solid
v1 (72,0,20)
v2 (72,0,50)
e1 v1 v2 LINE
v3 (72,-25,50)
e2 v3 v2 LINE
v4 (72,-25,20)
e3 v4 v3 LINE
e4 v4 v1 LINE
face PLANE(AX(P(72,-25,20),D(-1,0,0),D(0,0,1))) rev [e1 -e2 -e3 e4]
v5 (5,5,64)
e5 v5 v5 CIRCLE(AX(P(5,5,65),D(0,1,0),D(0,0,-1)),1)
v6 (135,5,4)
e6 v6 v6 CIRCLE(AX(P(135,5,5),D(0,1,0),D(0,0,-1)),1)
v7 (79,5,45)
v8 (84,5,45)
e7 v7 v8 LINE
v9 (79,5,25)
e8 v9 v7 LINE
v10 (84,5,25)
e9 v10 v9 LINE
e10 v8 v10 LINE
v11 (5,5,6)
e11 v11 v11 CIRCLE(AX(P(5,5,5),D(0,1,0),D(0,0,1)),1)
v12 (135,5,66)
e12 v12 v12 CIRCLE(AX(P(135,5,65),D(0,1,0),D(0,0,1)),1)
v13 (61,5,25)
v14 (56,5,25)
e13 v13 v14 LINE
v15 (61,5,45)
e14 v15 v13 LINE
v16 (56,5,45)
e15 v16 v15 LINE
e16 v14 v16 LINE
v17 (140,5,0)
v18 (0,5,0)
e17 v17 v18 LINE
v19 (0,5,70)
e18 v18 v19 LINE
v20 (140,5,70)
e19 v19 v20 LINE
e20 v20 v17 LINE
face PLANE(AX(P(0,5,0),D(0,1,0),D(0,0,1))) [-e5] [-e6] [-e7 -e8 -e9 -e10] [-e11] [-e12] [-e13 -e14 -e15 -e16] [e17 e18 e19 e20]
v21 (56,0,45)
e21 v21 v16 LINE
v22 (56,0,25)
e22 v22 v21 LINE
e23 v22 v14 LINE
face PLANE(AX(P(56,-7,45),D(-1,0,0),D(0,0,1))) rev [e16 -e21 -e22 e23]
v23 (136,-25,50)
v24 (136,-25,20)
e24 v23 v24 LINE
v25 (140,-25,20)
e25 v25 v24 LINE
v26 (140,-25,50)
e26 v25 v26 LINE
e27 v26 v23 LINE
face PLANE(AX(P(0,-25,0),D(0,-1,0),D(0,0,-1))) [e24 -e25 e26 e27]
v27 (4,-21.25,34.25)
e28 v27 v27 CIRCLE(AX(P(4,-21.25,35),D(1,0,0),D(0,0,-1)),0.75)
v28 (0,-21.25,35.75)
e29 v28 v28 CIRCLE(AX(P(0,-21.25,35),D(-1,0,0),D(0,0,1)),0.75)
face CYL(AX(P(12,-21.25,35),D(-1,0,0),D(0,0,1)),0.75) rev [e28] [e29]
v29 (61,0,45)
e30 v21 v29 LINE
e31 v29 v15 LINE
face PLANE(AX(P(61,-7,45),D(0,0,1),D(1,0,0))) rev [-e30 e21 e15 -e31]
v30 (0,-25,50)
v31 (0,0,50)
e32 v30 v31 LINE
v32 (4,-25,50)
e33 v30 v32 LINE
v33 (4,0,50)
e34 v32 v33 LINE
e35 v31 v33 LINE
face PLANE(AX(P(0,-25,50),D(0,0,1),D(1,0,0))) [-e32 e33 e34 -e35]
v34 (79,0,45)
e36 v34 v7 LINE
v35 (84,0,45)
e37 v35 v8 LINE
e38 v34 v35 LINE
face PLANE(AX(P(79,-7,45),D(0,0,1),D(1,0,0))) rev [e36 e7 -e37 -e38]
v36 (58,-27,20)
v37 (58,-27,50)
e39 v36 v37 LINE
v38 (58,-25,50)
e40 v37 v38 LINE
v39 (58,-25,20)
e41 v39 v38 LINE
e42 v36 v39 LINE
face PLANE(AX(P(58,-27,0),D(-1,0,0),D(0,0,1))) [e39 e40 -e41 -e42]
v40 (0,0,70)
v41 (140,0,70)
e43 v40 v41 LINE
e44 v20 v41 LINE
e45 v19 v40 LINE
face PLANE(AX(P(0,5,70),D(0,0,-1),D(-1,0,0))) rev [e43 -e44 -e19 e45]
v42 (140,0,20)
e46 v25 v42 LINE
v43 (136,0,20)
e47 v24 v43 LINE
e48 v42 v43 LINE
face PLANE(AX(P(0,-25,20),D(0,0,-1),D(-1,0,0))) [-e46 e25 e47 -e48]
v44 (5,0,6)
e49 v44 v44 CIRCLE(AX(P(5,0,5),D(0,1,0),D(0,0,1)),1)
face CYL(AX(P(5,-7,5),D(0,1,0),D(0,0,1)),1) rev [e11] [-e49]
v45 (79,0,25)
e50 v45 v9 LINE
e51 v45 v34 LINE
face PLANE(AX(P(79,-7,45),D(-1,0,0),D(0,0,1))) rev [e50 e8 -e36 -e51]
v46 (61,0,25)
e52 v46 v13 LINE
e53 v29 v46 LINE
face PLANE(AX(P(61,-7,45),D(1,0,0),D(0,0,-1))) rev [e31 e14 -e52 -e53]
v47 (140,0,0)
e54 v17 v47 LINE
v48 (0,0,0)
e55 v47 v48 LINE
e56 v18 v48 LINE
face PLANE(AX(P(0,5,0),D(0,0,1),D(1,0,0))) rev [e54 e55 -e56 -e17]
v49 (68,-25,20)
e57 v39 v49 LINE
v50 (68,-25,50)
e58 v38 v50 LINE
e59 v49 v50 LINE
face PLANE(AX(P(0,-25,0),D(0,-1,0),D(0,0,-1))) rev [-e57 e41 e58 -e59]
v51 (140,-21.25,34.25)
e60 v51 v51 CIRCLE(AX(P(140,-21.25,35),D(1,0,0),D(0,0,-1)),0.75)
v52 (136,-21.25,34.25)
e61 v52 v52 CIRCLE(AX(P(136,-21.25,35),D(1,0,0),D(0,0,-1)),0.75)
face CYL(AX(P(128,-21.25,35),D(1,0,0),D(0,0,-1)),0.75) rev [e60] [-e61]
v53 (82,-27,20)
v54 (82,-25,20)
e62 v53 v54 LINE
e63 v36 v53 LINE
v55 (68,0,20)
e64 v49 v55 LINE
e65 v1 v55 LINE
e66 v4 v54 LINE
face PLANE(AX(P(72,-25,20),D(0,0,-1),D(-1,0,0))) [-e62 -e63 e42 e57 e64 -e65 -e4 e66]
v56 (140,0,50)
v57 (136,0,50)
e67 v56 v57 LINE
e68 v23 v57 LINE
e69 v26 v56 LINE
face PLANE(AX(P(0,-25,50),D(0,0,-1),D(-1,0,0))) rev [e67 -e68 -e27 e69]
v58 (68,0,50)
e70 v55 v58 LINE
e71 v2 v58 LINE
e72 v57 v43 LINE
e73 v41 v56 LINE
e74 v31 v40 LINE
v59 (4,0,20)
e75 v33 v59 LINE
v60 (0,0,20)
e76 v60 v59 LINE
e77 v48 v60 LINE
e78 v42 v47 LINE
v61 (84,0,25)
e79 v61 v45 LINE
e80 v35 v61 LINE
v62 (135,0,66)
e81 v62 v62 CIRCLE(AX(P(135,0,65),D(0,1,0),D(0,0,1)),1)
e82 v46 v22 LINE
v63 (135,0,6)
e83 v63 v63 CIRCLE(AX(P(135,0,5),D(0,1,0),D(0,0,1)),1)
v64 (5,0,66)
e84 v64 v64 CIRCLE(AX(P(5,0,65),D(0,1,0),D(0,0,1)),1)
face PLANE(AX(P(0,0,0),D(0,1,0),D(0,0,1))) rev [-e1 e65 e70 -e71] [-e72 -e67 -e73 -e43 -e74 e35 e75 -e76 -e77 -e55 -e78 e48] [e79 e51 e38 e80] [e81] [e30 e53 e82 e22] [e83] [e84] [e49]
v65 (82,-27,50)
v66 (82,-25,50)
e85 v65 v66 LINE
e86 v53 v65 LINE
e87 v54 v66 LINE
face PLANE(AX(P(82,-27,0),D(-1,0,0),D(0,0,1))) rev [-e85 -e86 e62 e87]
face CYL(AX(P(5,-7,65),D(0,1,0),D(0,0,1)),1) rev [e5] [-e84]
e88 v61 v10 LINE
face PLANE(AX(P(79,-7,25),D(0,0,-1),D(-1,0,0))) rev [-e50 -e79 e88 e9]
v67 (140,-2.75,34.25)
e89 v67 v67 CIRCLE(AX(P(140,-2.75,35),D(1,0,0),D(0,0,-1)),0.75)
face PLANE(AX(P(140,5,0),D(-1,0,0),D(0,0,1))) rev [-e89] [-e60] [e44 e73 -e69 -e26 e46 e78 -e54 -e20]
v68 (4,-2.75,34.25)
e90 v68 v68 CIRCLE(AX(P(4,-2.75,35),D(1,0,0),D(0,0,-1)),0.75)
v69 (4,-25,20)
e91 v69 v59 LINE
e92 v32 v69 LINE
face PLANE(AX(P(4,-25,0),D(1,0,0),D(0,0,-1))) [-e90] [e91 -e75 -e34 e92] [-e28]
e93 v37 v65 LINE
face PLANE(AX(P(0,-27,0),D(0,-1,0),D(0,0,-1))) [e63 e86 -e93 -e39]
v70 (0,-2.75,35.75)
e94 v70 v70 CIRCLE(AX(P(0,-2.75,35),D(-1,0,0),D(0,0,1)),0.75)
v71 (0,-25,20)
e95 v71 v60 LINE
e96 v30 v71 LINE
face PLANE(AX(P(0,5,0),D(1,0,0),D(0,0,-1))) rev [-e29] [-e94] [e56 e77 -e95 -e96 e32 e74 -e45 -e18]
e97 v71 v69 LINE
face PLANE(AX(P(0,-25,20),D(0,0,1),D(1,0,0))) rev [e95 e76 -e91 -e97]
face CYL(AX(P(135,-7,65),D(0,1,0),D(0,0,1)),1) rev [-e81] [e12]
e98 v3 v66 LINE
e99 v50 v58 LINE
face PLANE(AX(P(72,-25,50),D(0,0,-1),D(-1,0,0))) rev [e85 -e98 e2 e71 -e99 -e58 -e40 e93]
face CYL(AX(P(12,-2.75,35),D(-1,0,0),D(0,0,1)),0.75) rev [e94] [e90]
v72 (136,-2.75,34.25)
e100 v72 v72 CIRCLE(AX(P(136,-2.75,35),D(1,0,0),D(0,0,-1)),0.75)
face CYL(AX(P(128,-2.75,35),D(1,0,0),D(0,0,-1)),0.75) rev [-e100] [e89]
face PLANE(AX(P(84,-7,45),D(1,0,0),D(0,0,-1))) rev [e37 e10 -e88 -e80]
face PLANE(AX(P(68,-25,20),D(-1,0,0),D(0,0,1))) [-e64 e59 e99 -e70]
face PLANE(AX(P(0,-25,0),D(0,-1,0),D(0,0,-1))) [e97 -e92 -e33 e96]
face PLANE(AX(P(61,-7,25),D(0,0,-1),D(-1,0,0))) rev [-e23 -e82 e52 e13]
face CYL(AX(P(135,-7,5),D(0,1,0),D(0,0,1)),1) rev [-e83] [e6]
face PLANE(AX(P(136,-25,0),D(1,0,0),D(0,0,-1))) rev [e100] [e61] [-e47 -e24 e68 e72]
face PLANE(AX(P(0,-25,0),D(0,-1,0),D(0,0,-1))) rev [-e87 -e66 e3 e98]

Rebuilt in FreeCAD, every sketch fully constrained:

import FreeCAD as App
import Part
import Sketcher
from FreeCAD import Vector

doc = App.newDocument("Part")
params = doc.addObject("Spreadsheet::Sheet", "Params")
for row, (alias, value) in enumerate([
    ("sketch1_width", "140 mm"),
    ("sketch1_height", "70 mm"),
    ("pad1_length", "5 mm"),
    ("sketch2_width", "4 mm"),
    ("sketch2_height", "30 mm"),
    ("pad2_length", "25 mm"),
    ("sketch3_width", "24 mm"),
    ("sketch3_height", "30 mm"),
    ("pad3_length", "2 mm"),
    ("sketch4_diameter", "1.5 mm"),
    ("pocket1_length", "12 mm"),
    ("sketch5_diameter", "1.5 mm"),
    ("pocket2_length", "12 mm"),
    ("sketch6_width", "5 mm"),
    ("sketch6_height", "20 mm"),
    ("pocket3_length", "12 mm"),
    ("sketch7_diameter", "2 mm"),
    ("pocket4_length", "12 mm"),
], start=1):
    params.set(f"A{row}", alias)
    params.set(f"B{row}", "=" + value)
    params.setAlias(f"B{row}", alias)

body = doc.addObject("PartDesign::Body", "Body")

sketch1 = doc.addObject("Sketcher::SketchObject", "Sketch")
body.addObject(sketch1)
sketch1.AttachmentSupport = (doc.XZ_Plane, [""])
sketch1.MapMode = "FlatFace"
sketch1.addGeometry([
    Part.LineSegment(Vector(0, 0, 0), Vector(0, 70, 0)),
    Part.LineSegment(Vector(0, 70, 0), Vector(140, 70, 0)),
    Part.LineSegment(Vector(140, 70, 0), Vector(140, 0, 0)),
    Part.LineSegment(Vector(140, 0, 0), Vector(0, 0, 0)),
], False)
sketch1.addConstraint([
    Sketcher.Constraint("Coincident", 0, 2, 1, 1),
    Sketcher.Constraint("Coincident", 1, 2, 2, 1),
    Sketcher.Constraint("Coincident", 2, 2, 3, 1),
    Sketcher.Constraint("Coincident", 3, 2, 0, 1),
    Sketcher.Constraint("Vertical", 0),
    Sketcher.Constraint("Horizontal", 1),
    Sketcher.Constraint("Vertical", 2),
    Sketcher.Constraint("Horizontal", 3),
    Sketcher.Constraint("Coincident", 3, 2, -1, 1),
    Sketcher.Constraint("DistanceX", 1, 1, 1, 2, 140.0),
    Sketcher.Constraint("DistanceY", 0, 1, 0, 2, 70.0),
])
sketch1.setExpression("Constraints[9]", "Params.sketch1_width")
sketch1.setExpression("Constraints[10]", "Params.sketch1_height")
pad1 = doc.addObject("PartDesign::Pad", "Pad")
body.addObject(pad1)
pad1.Profile = sketch1
pad1.setExpression("Length", "Params.pad1_length")
pad1.Reversed = True

sketch2 = doc.addObject("Sketcher::SketchObject", "Sketch001")
body.addObject(sketch2)
sketch2.AttachmentSupport = (doc.XZ_Plane, [""])
sketch2.MapMode = "FlatFace"
sketch2.addGeometry([
    Part.LineSegment(Vector(0, 50, 0), Vector(0, 20, 0)),
    Part.LineSegment(Vector(0, 20, 0), Vector(4, 20, 0)),
    Part.LineSegment(Vector(4, 20, 0), Vector(4, 50, 0)),
    Part.LineSegment(Vector(4, 50, 0), Vector(0, 50, 0)),
    Part.LineSegment(Vector(136, 50, 0), Vector(136, 20, 0)),
    Part.LineSegment(Vector(136, 20, 0), Vector(140, 20, 0)),
    Part.LineSegment(Vector(140, 20, 0), Vector(140, 50, 0)),
    Part.LineSegment(Vector(140, 50, 0), Vector(136, 50, 0)),
    Part.LineSegment(Vector(68, 50, 0), Vector(68, 20, 0)),
    Part.LineSegment(Vector(68, 20, 0), Vector(72, 20, 0)),
    Part.LineSegment(Vector(72, 20, 0), Vector(72, 50, 0)),
    Part.LineSegment(Vector(72, 50, 0), Vector(68, 50, 0)),
], False)
sketch2.addConstraint([
    Sketcher.Constraint("Coincident", 0, 2, 1, 1),
    Sketcher.Constraint("Coincident", 1, 2, 2, 1),
    Sketcher.Constraint("Coincident", 2, 2, 3, 1),
    Sketcher.Constraint("Coincident", 3, 2, 0, 1),
    Sketcher.Constraint("Coincident", 4, 2, 5, 1),
    Sketcher.Constraint("Coincident", 5, 2, 6, 1),
    Sketcher.Constraint("Coincident", 6, 2, 7, 1),
    Sketcher.Constraint("Coincident", 7, 2, 4, 1),
    Sketcher.Constraint("Coincident", 8, 2, 9, 1),
    Sketcher.Constraint("Coincident", 9, 2, 10, 1),
    Sketcher.Constraint("Coincident", 10, 2, 11, 1),
    Sketcher.Constraint("Coincident", 11, 2, 8, 1),
    Sketcher.Constraint("Vertical", 0),
    Sketcher.Constraint("Horizontal", 1),
    Sketcher.Constraint("Vertical", 2),
    Sketcher.Constraint("Horizontal", 3),
    Sketcher.Constraint("Vertical", 4),
    Sketcher.Constraint("Horizontal", 5),
    Sketcher.Constraint("Vertical", 6),
    Sketcher.Constraint("Horizontal", 7),
    Sketcher.Constraint("Vertical", 8),
    Sketcher.Constraint("Horizontal", 9),
    Sketcher.Constraint("Vertical", 10),
    Sketcher.Constraint("Horizontal", 11),
    Sketcher.Constraint("PointOnObject", 0, 2, -2),
    Sketcher.Constraint("Horizontal", 1, 2, 4, 2),
    Sketcher.Constraint("Horizontal", 3, 2, 6, 2),
    Sketcher.Constraint("Horizontal", 5, 2, 8, 2),
    Sketcher.Constraint("Horizontal", 7, 2, 10, 2),
    Sketcher.Constraint("Equal", 3, 5),
    Sketcher.Constraint("Equal", 7, 9),
    Sketcher.Constraint("DistanceX", 1, 1, 1, 2, 4.0),
    Sketcher.Constraint("DistanceY", 0, 2, 0, 1, 30.0),
    Sketcher.Constraint("DistanceY", -1, 1, 0, 2, 20.0),
    Sketcher.Constraint("DistanceX", -1, 1, 4, 2, 136.0),
    Sketcher.Constraint("DistanceX", -1, 1, 8, 2, 68.0),
])
sketch2.setExpression("Constraints[31]", "Params.sketch2_width")
sketch2.setExpression("Constraints[32]", "Params.sketch2_height")
pad2 = doc.addObject("PartDesign::Pad", "Pad001")
body.addObject(pad2)
pad2.Profile = sketch2
pad2.setExpression("Length", "Params.pad2_length")

sketch3 = doc.addObject("Sketcher::SketchObject", "Sketch002")
body.addObject(sketch3)
sketch3.AttachmentSupport = (doc.XZ_Plane, [""])
sketch3.MapMode = "FlatFace"
sketch3.AttachmentOffset = App.Placement(Vector(0, 0, 25), App.Rotation())
sketch3.addGeometry([
    Part.LineSegment(Vector(82, 20, 0), Vector(82, 50, 0)),
    Part.LineSegment(Vector(82, 50, 0), Vector(58, 50, 0)),
    Part.LineSegment(Vector(58, 50, 0), Vector(58, 20, 0)),
    Part.LineSegment(Vector(58, 20, 0), Vector(82, 20, 0)),
], False)
sketch3.addConstraint([
    Sketcher.Constraint("Coincident", 0, 2, 1, 1),
    Sketcher.Constraint("Coincident", 1, 2, 2, 1),
    Sketcher.Constraint("Coincident", 2, 2, 3, 1),
    Sketcher.Constraint("Coincident", 3, 2, 0, 1),
    Sketcher.Constraint("Vertical", 0),
    Sketcher.Constraint("Horizontal", 1),
    Sketcher.Constraint("Vertical", 2),
    Sketcher.Constraint("Horizontal", 3),
    Sketcher.Constraint("DistanceX", 1, 2, 1, 1, 24.0),
    Sketcher.Constraint("DistanceY", 0, 1, 0, 2, 30.0),
    Sketcher.Constraint("DistanceX", -1, 1, 0, 2, 82.0),
    Sketcher.Constraint("DistanceY", -1, 1, 0, 2, 50.0),
])
sketch3.setExpression("Constraints[8]", "Params.sketch3_width")
sketch3.setExpression("Constraints[9]", "Params.sketch3_height")
pad3 = doc.addObject("PartDesign::Pad", "Pad002")
body.addObject(pad3)
pad3.Profile = sketch3
pad3.setExpression("Length", "Params.pad3_length")

sketch4 = doc.addObject("Sketcher::SketchObject", "Sketch003")
body.addObject(sketch4)
sketch4.AttachmentSupport = (doc.YZ_Plane, [""])
sketch4.MapMode = "FlatFace"
sketch4.addGeometry([
    Part.Circle(Vector(-2.8, 35, 0), Vector(0, 0, 1), 0.8),
    Part.Circle(Vector(-21.2, 35, 0), Vector(0, 0, 1), 0.8),
], False)
sketch4.addConstraint([
    Sketcher.Constraint("Equal", 0, 1),
    Sketcher.Constraint("Horizontal", 0, 3, 1, 3),
    Sketcher.Constraint("Diameter", 0, 1.5),
    Sketcher.Constraint("DistanceY", -1, 1, 0, 3, 35.0),
    Sketcher.Constraint("DistanceX", 1, 3, 0, 3, 18.5),
    Sketcher.Constraint("DistanceX", 0, 3, -1, 1, 2.75),
])
sketch4.setExpression("Constraints[2]", "Params.sketch4_diameter")
pocket1 = doc.addObject("PartDesign::Pocket", "Pocket")
body.addObject(pocket1)
pocket1.Profile = sketch4
pocket1.setExpression("Length", "Params.pocket1_length")
pocket1.Reversed = True

sketch5 = doc.addObject("Sketcher::SketchObject", "Sketch004")
body.addObject(sketch5)
sketch5.AttachmentSupport = (doc.YZ_Plane, [""])
sketch5.MapMode = "FlatFace"
sketch5.AttachmentOffset = App.Placement(Vector(0, 0, 128), App.Rotation())
sketch5.addGeometry([
    Part.Circle(Vector(-21.2, 35, 0), Vector(0, 0, 1), 0.8),
    Part.Circle(Vector(-2.8, 35, 0), Vector(0, 0, 1), 0.8),
], False)
sketch5.addConstraint([
    Sketcher.Constraint("Equal", 0, 1),
    Sketcher.Constraint("Horizontal", 0, 3, 1, 3),
    Sketcher.Constraint("Diameter", 0, 1.5),
    Sketcher.Constraint("DistanceY", -1, 1, 0, 3, 35.0),
    Sketcher.Constraint("DistanceX", 0, 3, 1, 3, 18.5),
    Sketcher.Constraint("DistanceX", 0, 3, -1, 1, 21.25),
])
sketch5.setExpression("Constraints[2]", "Params.sketch5_diameter")
pocket2 = doc.addObject("PartDesign::Pocket", "Pocket001")
body.addObject(pocket2)
pocket2.Profile = sketch5
pocket2.setExpression("Length", "Params.pocket2_length")
pocket2.Reversed = True

sketch6 = doc.addObject("Sketcher::SketchObject", "Sketch005")
body.addObject(sketch6)
sketch6.AttachmentSupport = (doc.XZ_Plane, [""])
sketch6.MapMode = "FlatFace"
sketch6.AttachmentOffset = App.Placement(Vector(0, 0, -5), App.Rotation())
sketch6.addGeometry([
    Part.LineSegment(Vector(56, 25, 0), Vector(56, 45, 0)),
    Part.LineSegment(Vector(56, 45, 0), Vector(61, 45, 0)),
    Part.LineSegment(Vector(61, 45, 0), Vector(61, 25, 0)),
    Part.LineSegment(Vector(61, 25, 0), Vector(56, 25, 0)),
    Part.LineSegment(Vector(79, 25, 0), Vector(79, 45, 0)),
    Part.LineSegment(Vector(79, 45, 0), Vector(84, 45, 0)),
    Part.LineSegment(Vector(84, 45, 0), Vector(84, 25, 0)),
    Part.LineSegment(Vector(84, 25, 0), Vector(79, 25, 0)),
], False)
sketch6.addConstraint([
    Sketcher.Constraint("Coincident", 0, 2, 1, 1),
    Sketcher.Constraint("Coincident", 1, 2, 2, 1),
    Sketcher.Constraint("Coincident", 2, 2, 3, 1),
    Sketcher.Constraint("Coincident", 3, 2, 0, 1),
    Sketcher.Constraint("Coincident", 4, 2, 5, 1),
    Sketcher.Constraint("Coincident", 5, 2, 6, 1),
    Sketcher.Constraint("Coincident", 6, 2, 7, 1),
    Sketcher.Constraint("Coincident", 7, 2, 4, 1),
    Sketcher.Constraint("Vertical", 0),
    Sketcher.Constraint("Horizontal", 1),
    Sketcher.Constraint("Vertical", 2),
    Sketcher.Constraint("Horizontal", 3),
    Sketcher.Constraint("Vertical", 4),
    Sketcher.Constraint("Horizontal", 5),
    Sketcher.Constraint("Vertical", 6),
    Sketcher.Constraint("Horizontal", 7),
    Sketcher.Constraint("Horizontal", 1, 2, 4, 2),
    Sketcher.Constraint("Horizontal", 3, 2, 6, 2),
    Sketcher.Constraint("Equal", 3, 5),
    Sketcher.Constraint("DistanceX", 1, 1, 1, 2, 5.0),
    Sketcher.Constraint("DistanceY", 0, 1, 0, 2, 20.0),
    Sketcher.Constraint("DistanceX", -1, 1, 0, 2, 56.0),
    Sketcher.Constraint("DistanceY", -1, 1, 0, 2, 45.0),
    Sketcher.Constraint("DistanceX", -1, 1, 4, 2, 79.0),
])
sketch6.setExpression("Constraints[19]", "Params.sketch6_width")
sketch6.setExpression("Constraints[20]", "Params.sketch6_height")
pocket3 = doc.addObject("PartDesign::Pocket", "Pocket002")
body.addObject(pocket3)
pocket3.Profile = sketch6
pocket3.setExpression("Length", "Params.pocket3_length")
pocket3.Reversed = True

sketch7 = doc.addObject("Sketcher::SketchObject", "Sketch006")
body.addObject(sketch7)
sketch7.AttachmentSupport = (doc.XZ_Plane, [""])
sketch7.MapMode = "FlatFace"
sketch7.AttachmentOffset = App.Placement(Vector(0, 0, -5), App.Rotation())
sketch7.addGeometry([
    Part.Circle(Vector(135, 65, 0), Vector(0, 0, 1), 1),
    Part.Circle(Vector(135, 5, 0), Vector(0, 0, 1), 1),
    Part.Circle(Vector(5, 5, 0), Vector(0, 0, 1), 1),
    Part.Circle(Vector(5, 65, 0), Vector(0, 0, 1), 1),
], False)
sketch7.addConstraint([
    Sketcher.Constraint("Equal", 0, 1),
    Sketcher.Constraint("Equal", 1, 2),
    Sketcher.Constraint("Equal", 2, 3),
    Sketcher.Constraint("Horizontal", 1, 3, 2, 3),
    Sketcher.Constraint("Horizontal", 0, 3, 3, 3),
    Sketcher.Constraint("Vertical", 0, 3, 1, 3),
    Sketcher.Constraint("Vertical", 2, 3, 3, 3),
    Sketcher.Constraint("Diameter", 0, 2.0),
    Sketcher.Constraint("DistanceX", -1, 1, 0, 3, 135.0),
    Sketcher.Constraint("DistanceY", -1, 1, 0, 3, 65.0),
    Sketcher.Constraint("DistanceY", -1, 1, 1, 3, 5.0),
    Sketcher.Constraint("DistanceX", -1, 1, 2, 3, 5.0),
])
sketch7.setExpression("Constraints[7]", "Params.sketch7_diameter")
pocket4 = doc.addObject("PartDesign::Pocket", "Pocket003")
body.addObject(pocket4)
pocket4.Profile = sketch7
pocket4.setExpression("Length", "Params.pocket4_length")
pocket4.Reversed = True

doc.recompute()
